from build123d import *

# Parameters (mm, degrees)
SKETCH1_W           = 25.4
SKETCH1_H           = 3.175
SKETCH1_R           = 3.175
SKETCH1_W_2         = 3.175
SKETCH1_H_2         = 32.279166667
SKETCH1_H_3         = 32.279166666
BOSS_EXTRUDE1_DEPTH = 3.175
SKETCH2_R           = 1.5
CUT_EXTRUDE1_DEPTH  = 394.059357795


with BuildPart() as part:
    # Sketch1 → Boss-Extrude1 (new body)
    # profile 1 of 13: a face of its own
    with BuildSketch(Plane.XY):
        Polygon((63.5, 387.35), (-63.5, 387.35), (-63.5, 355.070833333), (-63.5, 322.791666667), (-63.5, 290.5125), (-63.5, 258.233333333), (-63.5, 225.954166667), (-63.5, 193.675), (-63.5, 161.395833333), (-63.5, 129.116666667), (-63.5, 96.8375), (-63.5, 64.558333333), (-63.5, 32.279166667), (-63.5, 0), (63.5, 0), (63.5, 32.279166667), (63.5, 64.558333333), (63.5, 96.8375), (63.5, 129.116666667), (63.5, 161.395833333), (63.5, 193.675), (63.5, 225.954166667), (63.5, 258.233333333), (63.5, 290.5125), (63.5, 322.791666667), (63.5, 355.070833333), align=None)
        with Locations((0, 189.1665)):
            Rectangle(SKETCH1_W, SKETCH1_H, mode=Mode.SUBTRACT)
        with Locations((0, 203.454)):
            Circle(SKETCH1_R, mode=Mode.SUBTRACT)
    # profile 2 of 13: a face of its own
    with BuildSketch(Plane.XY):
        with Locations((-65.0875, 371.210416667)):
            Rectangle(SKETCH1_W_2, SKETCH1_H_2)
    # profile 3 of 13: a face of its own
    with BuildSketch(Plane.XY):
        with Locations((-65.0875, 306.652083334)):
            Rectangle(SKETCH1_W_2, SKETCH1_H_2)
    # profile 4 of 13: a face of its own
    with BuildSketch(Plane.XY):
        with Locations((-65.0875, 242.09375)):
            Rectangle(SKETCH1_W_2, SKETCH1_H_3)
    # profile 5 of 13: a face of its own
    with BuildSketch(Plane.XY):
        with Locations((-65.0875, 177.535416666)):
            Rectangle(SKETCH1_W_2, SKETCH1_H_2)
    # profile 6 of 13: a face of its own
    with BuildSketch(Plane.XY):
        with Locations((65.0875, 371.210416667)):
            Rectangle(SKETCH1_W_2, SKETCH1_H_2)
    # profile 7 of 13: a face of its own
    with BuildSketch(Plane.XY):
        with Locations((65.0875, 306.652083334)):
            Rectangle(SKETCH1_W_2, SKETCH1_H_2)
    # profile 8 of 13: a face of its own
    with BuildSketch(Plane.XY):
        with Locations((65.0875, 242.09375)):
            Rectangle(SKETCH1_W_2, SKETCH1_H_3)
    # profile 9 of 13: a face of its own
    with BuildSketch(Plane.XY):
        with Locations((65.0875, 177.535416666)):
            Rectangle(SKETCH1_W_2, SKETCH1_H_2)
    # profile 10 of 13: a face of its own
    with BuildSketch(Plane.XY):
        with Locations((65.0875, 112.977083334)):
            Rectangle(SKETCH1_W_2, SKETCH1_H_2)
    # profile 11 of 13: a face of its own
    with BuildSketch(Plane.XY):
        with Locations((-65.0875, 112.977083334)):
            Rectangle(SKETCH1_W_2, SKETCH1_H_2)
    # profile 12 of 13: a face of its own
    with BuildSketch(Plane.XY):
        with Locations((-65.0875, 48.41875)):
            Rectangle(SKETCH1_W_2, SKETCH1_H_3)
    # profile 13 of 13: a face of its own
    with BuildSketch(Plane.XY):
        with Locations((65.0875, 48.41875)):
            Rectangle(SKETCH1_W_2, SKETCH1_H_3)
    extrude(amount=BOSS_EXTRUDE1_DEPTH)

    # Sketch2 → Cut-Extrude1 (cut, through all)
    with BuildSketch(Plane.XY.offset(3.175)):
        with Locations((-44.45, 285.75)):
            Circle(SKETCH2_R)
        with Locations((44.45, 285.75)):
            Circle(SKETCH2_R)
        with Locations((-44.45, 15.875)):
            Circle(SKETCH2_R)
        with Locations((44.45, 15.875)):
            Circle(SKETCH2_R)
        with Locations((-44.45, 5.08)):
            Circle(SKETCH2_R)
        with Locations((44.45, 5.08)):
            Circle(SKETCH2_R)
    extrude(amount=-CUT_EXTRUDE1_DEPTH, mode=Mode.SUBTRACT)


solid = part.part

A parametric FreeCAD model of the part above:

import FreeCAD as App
import Part
import Sketcher
Q = App.Units.Quantity

doc = App.newDocument("Part")
body = doc.addObject("PartDesign::Body", "Body")

# Sketch on XY plane
sketch1 = body.newObject("Sketcher::SketchObject", "Sketch")
sketch1.AttachmentSupport = (doc.getObject("XY_Plane"), [""])
sketch1.MapMode = "FlatFace"
sketch1.addGeometry([
    Part.LineSegment(App.Vector(63.5, 387.4, 0), App.Vector(-66.7, 387.4, 0)),  # 0
    Part.LineSegment(App.Vector(-66.7, 387.4, 0), App.Vector(-66.7, 355.1, 0)),  # 1
    Part.LineSegment(App.Vector(-66.7, 355.1, 0), App.Vector(-63.5, 355.1, 0)),  # 2
    Part.LineSegment(App.Vector(-63.5, 355.1, 0), App.Vector(-63.5, 322.8, 0)),  # 3
    Part.LineSegment(App.Vector(-63.5, 322.8, 0), App.Vector(-66.7, 322.8, 0)),  # 4
    Part.LineSegment(App.Vector(-66.7, 322.8, 0), App.Vector(-66.7, 290.5, 0)),  # 5
    Part.LineSegment(App.Vector(-66.7, 290.5, 0), App.Vector(-63.5, 290.5, 0)),  # 6
    Part.LineSegment(App.Vector(-63.5, 290.5, 0), App.Vector(-63.5, 258.2, 0)),  # 7
    Part.LineSegment(App.Vector(-63.5, 258.2, 0), App.Vector(-66.7, 258.2, 0)),  # 8
    Part.LineSegment(App.Vector(-66.7, 258.2, 0), App.Vector(-66.7, 226, 0)),  # 9
    Part.LineSegment(App.Vector(-66.7, 226, 0), App.Vector(-63.5, 226, 0)),  # 10
    Part.LineSegment(App.Vector(-63.5, 226, 0), App.Vector(-63.5, 193.7, 0)),  # 11
    Part.LineSegment(App.Vector(-63.5, 193.7, 0), App.Vector(-66.7, 193.7, 0)),  # 12
    Part.LineSegment(App.Vector(-66.7, 193.7, 0), App.Vector(-66.7, 161.4, 0)),  # 13
    Part.LineSegment(App.Vector(-66.7, 161.4, 0), App.Vector(-63.5, 161.4, 0)),  # 14
    Part.LineSegment(App.Vector(-63.5, 161.4, 0), App.Vector(-63.5, 129.1, 0)),  # 15
    Part.LineSegment(App.Vector(-63.5, 129.1, 0), App.Vector(-66.7, 129.1, 0)),  # 16
    Part.LineSegment(App.Vector(-66.7, 129.1, 0), App.Vector(-66.7, 96.8, 0)),  # 17
    Part.LineSegment(App.Vector(-66.7, 96.8, 0), App.Vector(-63.5, 96.8, 0)),  # 18
    Part.LineSegment(App.Vector(-63.5, 96.8, 0), App.Vector(-63.5, 64.6, 0)),  # 19
    Part.LineSegment(App.Vector(-63.5, 64.6, 0), App.Vector(-66.7, 64.6, 0)),  # 20
    Part.LineSegment(App.Vector(-66.7, 64.6, 0), App.Vector(-66.7, 32.3, 0)),  # 21
    Part.LineSegment(App.Vector(-66.7, 32.3, 0), App.Vector(-63.5, 32.3, 0)),  # 22
    Part.LineSegment(App.Vector(-63.5, 32.3, 0), App.Vector(-63.5, 0, 0)),  # 23
    Part.LineSegment(App.Vector(-63.5, 0, 0), App.Vector(63.5, 0, 0)),  # 24
    Part.LineSegment(App.Vector(63.5, 0, 0), App.Vector(63.5, 32.3, 0)),  # 25
    Part.LineSegment(App.Vector(63.5, 32.3, 0), App.Vector(66.7, 32.3, 0)),  # 26
    Part.LineSegment(App.Vector(66.7, 32.3, 0), App.Vector(66.7, 64.6, 0)),  # 27
    Part.LineSegment(App.Vector(66.7, 64.6, 0), App.Vector(63.5, 64.6, 0)),  # 28
    Part.LineSegment(App.Vector(63.5, 64.6, 0), App.Vector(63.5, 96.8, 0)),  # 29
    Part.LineSegment(App.Vector(63.5, 96.8, 0), App.Vector(66.7, 96.8, 0)),  # 30
    Part.LineSegment(App.Vector(66.7, 96.8, 0), App.Vector(66.7, 129.1, 0)),  # 31
    Part.LineSegment(App.Vector(66.7, 129.1, 0), App.Vector(63.5, 129.1, 0)),  # 32
    Part.LineSegment(App.Vector(63.5, 129.1, 0), App.Vector(63.5, 161.4, 0)),  # 33
    Part.LineSegment(App.Vector(63.5, 161.4, 0), App.Vector(66.7, 161.4, 0)),  # 34
    Part.LineSegment(App.Vector(66.7, 161.4, 0), App.Vector(66.7, 193.7, 0)),  # 35
    Part.LineSegment(App.Vector(66.7, 193.7, 0), App.Vector(63.5, 193.7, 0)),  # 36
    Part.LineSegment(App.Vector(63.5, 193.7, 0), App.Vector(63.5, 226, 0)),  # 37
    Part.LineSegment(App.Vector(63.5, 226, 0), App.Vector(66.7, 226, 0)),  # 38
    Part.LineSegment(App.Vector(66.7, 226, 0), App.Vector(66.7, 258.2, 0)),  # 39
    Part.LineSegment(App.Vector(66.7, 258.2, 0), App.Vector(63.5, 258.2, 0)),  # 40
    Part.LineSegment(App.Vector(63.5, 258.2, 0), App.Vector(63.5, 290.5, 0)),  # 41
    Part.LineSegment(App.Vector(63.5, 290.5, 0), App.Vector(66.7, 290.5, 0)),  # 42
    Part.LineSegment(App.Vector(66.7, 290.5, 0), App.Vector(66.7, 322.8, 0)),  # 43
    Part.LineSegment(App.Vector(66.7, 322.8, 0), App.Vector(63.5, 322.8, 0)),  # 44
    Part.LineSegment(App.Vector(63.5, 322.8, 0), App.Vector(63.5, 355.1, 0)),  # 45
    Part.LineSegment(App.Vector(63.5, 355.1, 0), App.Vector(66.7, 355.1, 0)),  # 46
    Part.LineSegment(App.Vector(66.7, 355.1, 0), App.Vector(66.7, 387.4, 0)),  # 47
    Part.LineSegment(App.Vector(66.7, 387.4, 0), App.Vector(63.5, 387.4, 0)),  # 48
    Part.LineSegment(App.Vector(12.7, 187.6, 0), App.Vector(-12.7, 187.6, 0)),  # 49
    Part.LineSegment(App.Vector(-12.7, 187.6, 0), App.Vector(-12.7, 190.8, 0)),  # 50
    Part.LineSegment(App.Vector(-12.7, 190.8, 0), App.Vector(12.7, 190.8, 0)),  # 51
    Part.LineSegment(App.Vector(12.7, 190.8, 0), App.Vector(12.7, 187.6, 0)),  # 52
    Part.Circle(App.Vector(0, 203.5, 0), App.Vector(0, 0, 1), 3.2),  # 53
], False)
sketch1.addConstraint([
    Sketcher.Constraint("Coincident", 0, 2, 1, 1),
    Sketcher.Constraint("Coincident", 1, 2, 2, 1),
    Sketcher.Constraint("Coincident", 2, 2, 3, 1),
    Sketcher.Constraint("Coincident", 3, 2, 4, 1),
    Sketcher.Constraint("Coincident", 4, 2, 5, 1),
    Sketcher.Constraint("Coincident", 5, 2, 6, 1),
    Sketcher.Constraint("Coincident", 6, 2, 7, 1),
    Sketcher.Constraint("Coincident", 7, 2, 8, 1),
    Sketcher.Constraint("Coincident", 8, 2, 9, 1),
    Sketcher.Constraint("Coincident", 9, 2, 10, 1),
    Sketcher.Constraint("Coincident", 10, 2, 11, 1),
    Sketcher.Constraint("Coincident", 11, 2, 12, 1),
    Sketcher.Constraint("Coincident", 12, 2, 13, 1),
    Sketcher.Constraint("Coincident", 13, 2, 14, 1),
    Sketcher.Constraint("Coincident", 14, 2, 15, 1),
    Sketcher.Constraint("Coincident", 15, 2, 16, 1),
    Sketcher.Constraint("Coincident", 16, 2, 17, 1),
    Sketcher.Constraint("Coincident", 17, 2, 18, 1),
    Sketcher.Constraint("Coincident", 18, 2, 19, 1),
    Sketcher.Constraint("Coincident", 19, 2, 20, 1),
    Sketcher.Constraint("Coincident", 20, 2, 21, 1),
    Sketcher.Constraint("Coincident", 21, 2, 22, 1),
    Sketcher.Constraint("Coincident", 22, 2, 23, 1),
    Sketcher.Constraint("Coincident", 23, 2, 24, 1),
    Sketcher.Constraint("Coincident", 24, 2, 25, 1),
    Sketcher.Constraint("Coincident", 25, 2, 26, 1),
    Sketcher.Constraint("Coincident", 26, 2, 27, 1),
    Sketcher.Constraint("Coincident", 27, 2, 28, 1),
    Sketcher.Constraint("Coincident", 28, 2, 29, 1),
    Sketcher.Constraint("Coincident", 29, 2, 30, 1),
    Sketcher.Constraint("Coincident", 30, 2, 31, 1),
    Sketcher.Constraint("Coincident", 31, 2, 32, 1),
    Sketcher.Constraint("Coincident", 32, 2, 33, 1),
    Sketcher.Constraint("Coincident", 33, 2, 34, 1),
    Sketcher.Constraint("Coincident", 34, 2, 35, 1),
    Sketcher.Constraint("Coincident", 35, 2, 36, 1),
    Sketcher.Constraint("Coincident", 36, 2, 37, 1),
    Sketcher.Constraint("Coincident", 37, 2, 38, 1),
    Sketcher.Constraint("Coincident", 38, 2, 39, 1),
    Sketcher.Constraint("Coincident", 39, 2, 40, 1),
    Sketcher.Constraint("Coincident", 40, 2, 41, 1),
    Sketcher.Constraint("Coincident", 41, 2, 42, 1),
    Sketcher.Constraint("Coincident", 42, 2, 43, 1),
    Sketcher.Constraint("Coincident", 43, 2, 44, 1),
    Sketcher.Constraint("Coincident", 44, 2, 45, 1),
    Sketcher.Constraint("Coincident", 45, 2, 46, 1),
    Sketcher.Constraint("Coincident", 46, 2, 47, 1),
    Sketcher.Constraint("Coincident", 47, 2, 48, 1),
    Sketcher.Constraint("Coincident", 48, 2, 0, 1),
    Sketcher.Constraint("Coincident", 49, 2, 50, 1),
    Sketcher.Constraint("Coincident", 50, 2, 51, 1),
    Sketcher.Constraint("Coincident", 51, 2, 52, 1),
    Sketcher.Constraint("Coincident", 52, 2, 49, 1),
    Sketcher.Constraint("Horizontal", 0),
    Sketcher.Constraint("Vertical", 1),
    Sketcher.Constraint("Horizontal", 2),
    Sketcher.Constraint("Vertical", 3),
    Sketcher.Constraint("Horizontal", 4),
    Sketcher.Constraint("Vertical", 5),
    Sketcher.Constraint("Horizontal", 6),
    Sketcher.Constraint("Vertical", 7),
    Sketcher.Constraint("Horizontal", 8),
    Sketcher.Constraint("Vertical", 9),
    Sketcher.Constraint("Horizontal", 10),
    Sketcher.Constraint("Vertical", 11),
    Sketcher.Constraint("Horizontal", 12),
    Sketcher.Constraint("Vertical", 13),
    Sketcher.Constraint("Horizontal", 14),
    Sketcher.Constraint("Vertical", 15),
    Sketcher.Constraint("Horizontal", 16),
    Sketcher.Constraint("Vertical", 17),
    Sketcher.Constraint("Horizontal", 18),
    Sketcher.Constraint("Vertical", 19),
    Sketcher.Constraint("Horizontal", 20),
    Sketcher.Constraint("Vertical", 21),
    Sketcher.Constraint("Horizontal", 22),
    Sketcher.Constraint("Vertical", 23),
    Sketcher.Constraint("Horizontal", 24),
    Sketcher.Constraint("Vertical", 25),
    Sketcher.Constraint("Horizontal", 26),
    Sketcher.Constraint("Vertical", 27),
    Sketcher.Constraint("Horizontal", 28),
    Sketcher.Constraint("Vertical", 29),
    Sketcher.Constraint("Horizontal", 30),
    Sketcher.Constraint("Vertical", 31),
    Sketcher.Constraint("Horizontal", 32),
    Sketcher.Constraint("Vertical", 33),
    Sketcher.Constraint("Horizontal", 34),
    Sketcher.Constraint("Vertical", 35),
    Sketcher.Constraint("Horizontal", 36),
    Sketcher.Constraint("Vertical", 37),
    Sketcher.Constraint("Horizontal", 38),
    Sketcher.Constraint("Vertical", 39),
    Sketcher.Constraint("Horizontal", 40),
    Sketcher.Constraint("Vertical", 41),
    Sketcher.Constraint("Horizontal", 42),
    Sketcher.Constraint("Vertical", 43),
    Sketcher.Constraint("Horizontal", 44),
    Sketcher.Constraint("Vertical", 45),
    Sketcher.Constraint("Horizontal", 46),
    Sketcher.Constraint("Vertical", 47),
    Sketcher.Constraint("Horizontal", 48),
    Sketcher.Constraint("Horizontal", 49),
    Sketcher.Constraint("Vertical", 50),
    Sketcher.Constraint("Horizontal", 51),
    Sketcher.Constraint("Vertical", 52),
    Sketcher.Constraint("Symmetric", 23, 2, 24, 2, -1, 1),
    Sketcher.Constraint("Symmetric", 21, 2, 26, 2, -2),
    Sketcher.Constraint("Symmetric", 19, 2, 28, 2, -2),
    Sketcher.Constraint("Symmetric", 17, 2, 30, 2, -2),
    Sketcher.Constraint("Symmetric", 15, 2, 32, 2, -2),
    Sketcher.Constraint("Symmetric", 13, 2, 34, 2, -2),
    Sketcher.Constraint("Symmetric", 11, 2, 36, 2, -2),
    Sketcher.Constraint("Symmetric", 9, 2, 38, 2, -2),
    Sketcher.Constraint("Symmetric", 7, 2, 40, 2, -2),
    Sketcher.Constraint("Symmetric", 5, 2, 42, 2, -2),
    Sketcher.Constraint("Symmetric", 3, 2, 44, 2, -2),
    Sketcher.Constraint("Symmetric", 1, 2, 46, 2, -2),
    Sketcher.Constraint("PointOnObject", 53, 3, -2),
    Sketcher.Constraint("Vertical", 1, 2, 4, 2),
    Sketcher.Constraint("Vertical", 3, 2, 6, 2),
    Sketcher.Constraint("Vertical", 5, 2, 8, 2),
    Sketcher.Constraint("Vertical", 7, 2, 10, 2),
    Sketcher.Constraint("Vertical", 9, 2, 12, 2),
    Sketcher.Constraint("Vertical", 11, 2, 14, 2),
    Sketcher.Constraint("Vertical", 13, 2, 16, 2),
    Sketcher.Constraint("Vertical", 15, 2, 18, 2),
    Sketcher.Constraint("Vertical", 17, 2, 20, 2),
    Sketcher.Constraint("Vertical", 19, 2, 22, 2),
    Sketcher.Constraint("Vertical", 45, 2, 48, 2),
    Sketcher.Constraint("Equal", 1, 3),
    Sketcher.Constraint("Equal", 3, 5),
    Sketcher.Constraint("Equal", 5, 7),
    Sketcher.Constraint("Equal", 7, 9),
    Sketcher.Constraint("Equal", 9, 11),
    Sketcher.Constraint("Equal", 11, 13),
    Sketcher.Constraint("Equal", 13, 15),
    Sketcher.Constraint("Equal", 15, 17),
    Sketcher.Constraint("Equal", 17, 19),
    Sketcher.Constraint("Equal", 19, 21),
    Sketcher.Constraint("Equal", 21, 23),
    Sketcher.Constraint("Equal", 48, 50),
    Sketcher.Constraint("Diameter", 53, Q("0.25 in")),
    Sketcher.Constraint("DistanceX", 24, 1, 24, 2, Q("5 in")),
    Sketcher.Constraint("DistanceX", 49, 2, 49, 1, Q("1 in")),
    Sketcher.Constraint("DistanceX", 11, 2, 49, 2, Q("2 in")),
    Sketcher.Constraint("DistanceY", 50, 2, 53, 3, Q("0.5 in")),
    Sketcher.Constraint("DistanceX", 0, 2, 0, 1, Q("5.125 in")),
    Sketcher.Constraint("DistanceY", -1, 1, 53, 3, Q("8.01 in")),
    Sketcher.Constraint("DistanceY", -1, 1, 0, 2, Q("15.25 in")),
])
pad1 = body.newObject("PartDesign::Pad", "Pad")
pad1.Profile = sketch1
pad1.Length = Q("0.125 in")

# Sketch on XY plane
sketch2 = body.newObject("Sketcher::SketchObject", "Sketch001")
sketch2.AttachmentSupport = (doc.getObject("XY_Plane"), [""])
sketch2.MapMode = "FlatFace"
sketch2.AttachmentOffset = App.Placement(App.Vector(0, 0, 0.125 * 25.4), App.Rotation())
sketch2.addGeometry([
    Part.Circle(App.Vector(-44.5, 285.8, 0), App.Vector(0, 0, 1), 1.5),  # 0
    Part.Circle(App.Vector(44.5, 285.8, 0), App.Vector(0, 0, 1), 1.5),  # 1
    Part.Circle(App.Vector(-44.5, 15.9, 0), App.Vector(0, 0, 1), 1.5),  # 2
    Part.Circle(App.Vector(44.5, 15.9, 0), App.Vector(0, 0, 1), 1.5),  # 3
    Part.Circle(App.Vector(-44.5, 5.1, 0), App.Vector(0, 0, 1), 1.5),  # 4
    Part.Circle(App.Vector(44.5, 5.1, 0), App.Vector(0, 0, 1), 1.5),  # 5
], False)
sketch2.addConstraint([
    Sketcher.Constraint("Equal", 0, 1),
    Sketcher.Constraint("Equal", 1, 2),
    Sketcher.Constraint("Equal", 2, 3),
    Sketcher.Constraint("Equal", 3, 4),
    Sketcher.Constraint("Equal", 4, 5),
    Sketcher.Constraint("Symmetric", 0, 3, 1, 3, -2),
    Sketcher.Constraint("Symmetric", 2, 3, 3, 3, -2),
    Sketcher.Constraint("Symmetric", 4, 3, 5, 3, -2),
    Sketcher.Constraint("Vertical", 0, 3, 2, 3),
    Sketcher.Constraint("Vertical", 2, 3, 4, 3),
    Sketcher.Constraint("DistanceY", -1, 1, 4, 3, Q("0.2 in")),
    Sketcher.Constraint("DistanceX", 0, 3, 1, 3, Q("3.5 in")),
    Sketcher.Constraint("Diameter", 0, Q("3 mm")),
    Sketcher.Constraint("DistanceY", -1, 1, 0, 3, Q("11.25 in")),
    Sketcher.Constraint("DistanceY", -1, 1, 2, 3, Q("0.625 in")),
])
pocket1 = body.newObject("PartDesign::Pocket", "Pocket")
pocket1.Profile = sketch2
pocket1.Type = "ThroughAll"

doc.recompute()
